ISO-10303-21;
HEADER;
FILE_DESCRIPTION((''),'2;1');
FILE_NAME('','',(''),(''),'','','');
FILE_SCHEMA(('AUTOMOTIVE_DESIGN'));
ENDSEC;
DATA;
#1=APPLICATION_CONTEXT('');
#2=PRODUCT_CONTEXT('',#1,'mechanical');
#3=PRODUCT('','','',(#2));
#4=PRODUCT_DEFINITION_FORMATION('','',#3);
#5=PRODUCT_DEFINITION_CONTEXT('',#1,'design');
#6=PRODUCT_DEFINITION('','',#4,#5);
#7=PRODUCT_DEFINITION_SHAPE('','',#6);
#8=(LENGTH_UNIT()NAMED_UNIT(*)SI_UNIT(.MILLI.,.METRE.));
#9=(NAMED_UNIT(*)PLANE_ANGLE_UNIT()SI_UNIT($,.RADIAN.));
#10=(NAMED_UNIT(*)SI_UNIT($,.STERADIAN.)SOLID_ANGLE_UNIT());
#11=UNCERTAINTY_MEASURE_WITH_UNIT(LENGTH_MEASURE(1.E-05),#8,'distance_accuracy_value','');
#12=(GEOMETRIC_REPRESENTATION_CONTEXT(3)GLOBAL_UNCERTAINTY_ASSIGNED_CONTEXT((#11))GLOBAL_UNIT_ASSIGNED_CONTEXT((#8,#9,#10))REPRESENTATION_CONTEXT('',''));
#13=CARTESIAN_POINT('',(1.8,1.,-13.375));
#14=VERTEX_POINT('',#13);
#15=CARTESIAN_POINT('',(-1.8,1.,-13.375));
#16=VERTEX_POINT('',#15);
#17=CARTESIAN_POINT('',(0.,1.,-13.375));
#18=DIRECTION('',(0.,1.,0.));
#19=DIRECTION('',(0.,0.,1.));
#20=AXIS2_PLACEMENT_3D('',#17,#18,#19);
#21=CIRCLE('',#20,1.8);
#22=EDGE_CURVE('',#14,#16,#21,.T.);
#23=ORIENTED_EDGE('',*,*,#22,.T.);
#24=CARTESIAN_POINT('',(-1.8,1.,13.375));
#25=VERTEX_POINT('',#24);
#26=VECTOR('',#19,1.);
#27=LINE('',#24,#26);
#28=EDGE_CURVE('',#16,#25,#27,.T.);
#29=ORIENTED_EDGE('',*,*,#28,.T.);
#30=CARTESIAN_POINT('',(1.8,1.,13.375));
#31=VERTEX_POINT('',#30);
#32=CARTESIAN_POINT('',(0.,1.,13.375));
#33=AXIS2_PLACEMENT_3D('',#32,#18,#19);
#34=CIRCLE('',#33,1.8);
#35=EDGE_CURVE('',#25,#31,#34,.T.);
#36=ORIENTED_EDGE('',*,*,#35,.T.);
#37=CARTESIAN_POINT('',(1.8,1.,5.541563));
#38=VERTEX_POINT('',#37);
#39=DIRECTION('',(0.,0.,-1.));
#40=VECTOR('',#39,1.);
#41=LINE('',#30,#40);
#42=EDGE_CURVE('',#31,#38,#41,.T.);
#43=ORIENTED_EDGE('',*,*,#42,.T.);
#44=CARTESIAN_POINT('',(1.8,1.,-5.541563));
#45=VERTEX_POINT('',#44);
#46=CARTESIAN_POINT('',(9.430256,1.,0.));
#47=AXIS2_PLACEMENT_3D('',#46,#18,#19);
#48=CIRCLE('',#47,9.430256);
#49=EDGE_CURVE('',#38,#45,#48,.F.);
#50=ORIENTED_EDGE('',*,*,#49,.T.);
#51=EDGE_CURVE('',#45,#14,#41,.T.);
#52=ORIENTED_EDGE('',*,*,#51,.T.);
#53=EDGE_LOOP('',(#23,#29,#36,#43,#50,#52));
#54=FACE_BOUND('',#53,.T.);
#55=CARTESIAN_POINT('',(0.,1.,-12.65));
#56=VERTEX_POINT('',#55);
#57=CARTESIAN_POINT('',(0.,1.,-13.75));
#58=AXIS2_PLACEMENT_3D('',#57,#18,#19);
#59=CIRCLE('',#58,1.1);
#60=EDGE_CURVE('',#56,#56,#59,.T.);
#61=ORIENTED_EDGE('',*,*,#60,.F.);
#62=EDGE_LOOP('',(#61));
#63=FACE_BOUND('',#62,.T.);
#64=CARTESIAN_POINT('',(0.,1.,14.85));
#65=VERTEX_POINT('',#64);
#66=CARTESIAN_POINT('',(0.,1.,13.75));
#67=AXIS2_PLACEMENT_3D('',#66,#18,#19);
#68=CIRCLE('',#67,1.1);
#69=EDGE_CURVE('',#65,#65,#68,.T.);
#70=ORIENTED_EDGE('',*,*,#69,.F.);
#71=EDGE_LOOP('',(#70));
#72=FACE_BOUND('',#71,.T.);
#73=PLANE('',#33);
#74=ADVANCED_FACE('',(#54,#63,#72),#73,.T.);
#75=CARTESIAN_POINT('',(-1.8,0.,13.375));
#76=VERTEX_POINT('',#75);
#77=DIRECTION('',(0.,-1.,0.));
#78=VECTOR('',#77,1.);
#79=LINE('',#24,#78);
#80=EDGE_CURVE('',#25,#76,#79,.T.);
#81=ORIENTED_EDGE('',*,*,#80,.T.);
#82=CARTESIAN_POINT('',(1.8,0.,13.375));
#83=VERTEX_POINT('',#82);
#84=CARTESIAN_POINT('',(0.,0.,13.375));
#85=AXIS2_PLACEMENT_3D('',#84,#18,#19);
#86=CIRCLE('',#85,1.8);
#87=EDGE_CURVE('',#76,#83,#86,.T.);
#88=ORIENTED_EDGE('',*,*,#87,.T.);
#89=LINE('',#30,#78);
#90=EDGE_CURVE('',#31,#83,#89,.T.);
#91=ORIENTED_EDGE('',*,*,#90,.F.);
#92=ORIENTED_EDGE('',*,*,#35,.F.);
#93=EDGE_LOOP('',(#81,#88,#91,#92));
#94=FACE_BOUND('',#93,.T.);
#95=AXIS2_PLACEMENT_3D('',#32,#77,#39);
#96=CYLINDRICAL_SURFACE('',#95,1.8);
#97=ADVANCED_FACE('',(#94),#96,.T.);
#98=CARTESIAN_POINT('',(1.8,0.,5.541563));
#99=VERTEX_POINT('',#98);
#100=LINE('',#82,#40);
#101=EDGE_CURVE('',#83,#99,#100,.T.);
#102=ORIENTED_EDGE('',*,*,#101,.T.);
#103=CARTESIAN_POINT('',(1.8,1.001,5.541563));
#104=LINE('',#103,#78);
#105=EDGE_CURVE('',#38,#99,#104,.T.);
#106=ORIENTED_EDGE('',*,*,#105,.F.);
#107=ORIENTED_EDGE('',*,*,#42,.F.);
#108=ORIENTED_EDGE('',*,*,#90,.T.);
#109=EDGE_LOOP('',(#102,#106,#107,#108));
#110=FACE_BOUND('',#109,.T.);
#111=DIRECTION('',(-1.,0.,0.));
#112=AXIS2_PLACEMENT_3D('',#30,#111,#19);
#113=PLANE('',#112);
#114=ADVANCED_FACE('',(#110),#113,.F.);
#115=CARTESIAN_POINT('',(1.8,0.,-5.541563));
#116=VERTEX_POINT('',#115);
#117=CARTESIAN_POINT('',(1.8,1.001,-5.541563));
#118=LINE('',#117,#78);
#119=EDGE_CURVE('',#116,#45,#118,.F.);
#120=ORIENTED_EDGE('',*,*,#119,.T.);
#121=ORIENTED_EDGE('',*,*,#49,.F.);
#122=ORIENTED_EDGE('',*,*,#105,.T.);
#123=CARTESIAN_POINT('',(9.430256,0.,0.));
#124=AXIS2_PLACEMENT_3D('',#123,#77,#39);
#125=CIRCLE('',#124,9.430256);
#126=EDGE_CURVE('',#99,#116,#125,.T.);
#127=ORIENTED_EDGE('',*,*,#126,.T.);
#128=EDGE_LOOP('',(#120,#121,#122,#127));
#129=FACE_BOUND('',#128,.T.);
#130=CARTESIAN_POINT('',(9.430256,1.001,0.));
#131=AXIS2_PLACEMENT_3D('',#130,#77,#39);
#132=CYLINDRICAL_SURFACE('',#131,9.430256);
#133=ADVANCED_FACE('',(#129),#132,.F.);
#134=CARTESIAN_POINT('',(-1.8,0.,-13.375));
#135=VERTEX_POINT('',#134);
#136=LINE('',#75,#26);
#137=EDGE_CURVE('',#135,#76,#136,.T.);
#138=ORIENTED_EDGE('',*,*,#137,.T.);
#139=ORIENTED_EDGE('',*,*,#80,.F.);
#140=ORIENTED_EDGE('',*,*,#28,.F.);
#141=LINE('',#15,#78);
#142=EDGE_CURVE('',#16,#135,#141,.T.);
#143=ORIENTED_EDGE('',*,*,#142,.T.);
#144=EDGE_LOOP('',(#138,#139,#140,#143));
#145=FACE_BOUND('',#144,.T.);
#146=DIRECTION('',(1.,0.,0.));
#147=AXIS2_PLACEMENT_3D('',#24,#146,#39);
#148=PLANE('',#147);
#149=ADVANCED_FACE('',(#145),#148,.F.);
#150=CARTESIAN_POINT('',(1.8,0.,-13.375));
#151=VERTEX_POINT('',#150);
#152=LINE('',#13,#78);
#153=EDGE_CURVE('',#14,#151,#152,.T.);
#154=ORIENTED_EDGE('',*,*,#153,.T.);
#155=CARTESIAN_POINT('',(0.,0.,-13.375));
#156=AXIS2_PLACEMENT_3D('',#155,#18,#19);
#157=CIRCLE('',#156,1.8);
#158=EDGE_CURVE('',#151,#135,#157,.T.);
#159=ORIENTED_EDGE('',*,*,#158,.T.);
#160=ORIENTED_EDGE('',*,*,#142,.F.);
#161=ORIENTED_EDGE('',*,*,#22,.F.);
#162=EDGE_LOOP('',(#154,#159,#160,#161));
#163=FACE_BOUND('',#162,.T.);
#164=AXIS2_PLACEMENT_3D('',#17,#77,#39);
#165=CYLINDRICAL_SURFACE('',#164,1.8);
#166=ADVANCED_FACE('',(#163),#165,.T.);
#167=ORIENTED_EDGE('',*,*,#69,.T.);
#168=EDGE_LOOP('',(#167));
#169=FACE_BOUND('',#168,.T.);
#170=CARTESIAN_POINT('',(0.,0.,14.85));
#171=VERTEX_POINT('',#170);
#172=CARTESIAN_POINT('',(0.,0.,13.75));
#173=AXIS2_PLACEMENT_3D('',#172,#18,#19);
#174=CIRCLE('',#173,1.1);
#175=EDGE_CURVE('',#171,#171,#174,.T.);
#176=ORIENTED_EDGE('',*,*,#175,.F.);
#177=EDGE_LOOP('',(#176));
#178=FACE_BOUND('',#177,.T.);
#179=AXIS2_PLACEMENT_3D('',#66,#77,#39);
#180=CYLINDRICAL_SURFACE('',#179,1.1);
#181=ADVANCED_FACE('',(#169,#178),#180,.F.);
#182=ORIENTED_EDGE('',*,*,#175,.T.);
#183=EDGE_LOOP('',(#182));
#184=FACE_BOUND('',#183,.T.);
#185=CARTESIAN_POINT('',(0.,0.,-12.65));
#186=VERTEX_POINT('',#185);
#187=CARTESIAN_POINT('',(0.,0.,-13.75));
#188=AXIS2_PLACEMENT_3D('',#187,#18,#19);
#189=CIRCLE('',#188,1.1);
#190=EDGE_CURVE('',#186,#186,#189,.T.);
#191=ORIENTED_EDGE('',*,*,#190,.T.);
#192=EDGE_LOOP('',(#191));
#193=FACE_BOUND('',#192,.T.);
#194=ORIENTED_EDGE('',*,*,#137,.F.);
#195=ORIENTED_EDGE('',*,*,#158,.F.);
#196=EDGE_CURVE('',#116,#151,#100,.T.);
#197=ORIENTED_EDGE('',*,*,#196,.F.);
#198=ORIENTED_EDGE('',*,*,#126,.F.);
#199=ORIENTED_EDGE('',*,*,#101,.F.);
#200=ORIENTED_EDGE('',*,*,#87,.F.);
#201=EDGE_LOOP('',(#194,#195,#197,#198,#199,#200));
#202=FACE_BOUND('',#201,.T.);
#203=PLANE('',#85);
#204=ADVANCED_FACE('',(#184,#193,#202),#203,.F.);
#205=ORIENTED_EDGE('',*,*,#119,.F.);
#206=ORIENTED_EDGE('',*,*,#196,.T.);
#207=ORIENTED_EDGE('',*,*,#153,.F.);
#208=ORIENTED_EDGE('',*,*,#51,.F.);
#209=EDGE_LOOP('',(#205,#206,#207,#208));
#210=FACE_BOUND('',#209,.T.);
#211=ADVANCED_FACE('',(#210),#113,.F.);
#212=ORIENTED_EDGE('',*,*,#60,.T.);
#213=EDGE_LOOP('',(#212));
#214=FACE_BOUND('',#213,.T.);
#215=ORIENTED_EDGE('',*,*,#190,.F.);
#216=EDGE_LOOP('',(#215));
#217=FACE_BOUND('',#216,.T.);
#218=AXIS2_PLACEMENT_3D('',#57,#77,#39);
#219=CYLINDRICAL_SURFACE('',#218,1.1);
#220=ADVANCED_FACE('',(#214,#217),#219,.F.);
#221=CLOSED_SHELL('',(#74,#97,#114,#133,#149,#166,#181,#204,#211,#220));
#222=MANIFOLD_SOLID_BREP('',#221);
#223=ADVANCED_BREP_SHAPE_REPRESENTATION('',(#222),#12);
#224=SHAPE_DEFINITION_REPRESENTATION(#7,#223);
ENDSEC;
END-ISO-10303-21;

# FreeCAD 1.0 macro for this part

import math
import FreeCAD as App
import Part
import Sketcher

V = App.Vector

doc = App.newDocument("Part")
body = doc.addObject("PartDesign::Body", "Body")

# Sketch on XZ plane
sketch1 = body.newObject("Sketcher::SketchObject", "Sketch")
sketch1.AttachmentSupport = (doc.getObject("XZ_Plane"), [""])
sketch1.MapMode = "FlatFace"
sketch1.addGeometry(Part.LineSegment(V(-1.8, -13.4, 0), V(-1.8, 13.4, 0)), False)
sketch1.addGeometry(Part.ArcOfCircle(Part.Circle(V(0, 13.4, 0), V(0, 0, 1), 1.8), math.radians(0), math.radians(180)), False)
sketch1.addGeometry(Part.LineSegment(V(1.8, 13.4, 0), V(1.8, -13.4, 0)), False)
sketch1.addGeometry(Part.ArcOfCircle(Part.Circle(V(0, -13.4, 0), V(0, 0, 1), 1.8), math.radians(180), math.radians(360)), False)
sketch1.addGeometry(Part.Circle(V(0, 13.8, 0), V(0, 0, 1), 1.1), False)
sketch1.addGeometry(Part.Circle(V(0, -13.8, 0), V(0, 0, 1), 1.1), False)
sketch1.addConstraint(Sketcher.Constraint("Tangent", 0, 2, 1, 2))
sketch1.addConstraint(Sketcher.Constraint("Tangent", 1, 1, 2, 1))
sketch1.addConstraint(Sketcher.Constraint("Tangent", 2, 2, 3, 2))
sketch1.addConstraint(Sketcher.Constraint("Tangent", 3, 1, 0, 1))
sketch1.addConstraint(Sketcher.Constraint("Vertical", 0))
sketch1.addConstraint(Sketcher.Constraint("Vertical", 2))
sketch1.addConstraint(Sketcher.Constraint("Equal", 4, 5))
sketch1.addConstraint(Sketcher.Constraint("Symmetric", 1, 3, 3, 3, -1, 1))
sketch1.addConstraint(Sketcher.Constraint("Symmetric", 4, 3, 5, 3, -1, 1))
sketch1.addConstraint(Sketcher.Constraint("PointOnObject", 4, 3, -2))
sketch1.addConstraint(Sketcher.Constraint("Diameter", 4, 2.2))
sketch1.addConstraint(Sketcher.Constraint("Radius", 1, 1.8))
sketch1.addConstraint(Sketcher.Constraint("DistanceY", 0, 1, 0, 2, 26.75))
sketch1.addConstraint(Sketcher.Constraint("DistanceY", 5, 3, 4, 3, 27.5))
pad1 = body.newObject("PartDesign::Pad", "Pad")
pad1.Profile = sketch1
pad1.Length = 1
pad1.Reversed = True

# Sketch on an angled plane
sketch2 = body.newObject("Sketcher::SketchObject", "Sketch001")
sketch2.Placement = App.Placement(V(0, 0, 0), App.Rotation(V(0.707106781, -0.707106781, 0), V(0, 0, -0.999999999), V(0.707106781, 0.707106781, 0), "ZXY"))
sketch2.addGeometry(Part.Circle(V(13, 0, 0), V(0, 0, 1), 13), False)
sketch2.addConstraint(Sketcher.Constraint("PointOnObject", 0, 3, -1))
sketch2.addConstraint(Sketcher.Constraint("Diameter", 0, 25.4))
sketch2.addConstraint(Sketcher.Constraint("DistanceX", -1, 1, 0, 3, 12.7))
pocket1 = body.newObject("PartDesign::Pocket", "Pocket")
pocket1.Profile = sketch2
pocket1.Type = "ThroughAll"
pocket1.Midplane = True

# Sketch on XZ plane
sketch3 = body.newObject("Sketcher::SketchObject", "Sketch002")
sketch3.AttachmentSupport = (doc.getObject("XZ_Plane"), [""])
sketch3.MapMode = "FlatFace"
sketch3.addGeometry(Part.Circle(V(9, 0, 0), V(0, 0, 1), 9), False)
sketch3.addConstraint(Sketcher.Constraint("PointOnObject", 0, 3, -1))
sketch3.addConstraint(Sketcher.Constraint("Diameter", 0, 18.860512))
sketch3.addConstraint(Sketcher.Constraint("DistanceX", -1, 1, 0, 3, 9.430256))
pocket2 = body.newObject("PartDesign::Pocket", "Pocket001")
pocket2.Profile = sketch3
pocket2.Length = 1

doc.recompute()
